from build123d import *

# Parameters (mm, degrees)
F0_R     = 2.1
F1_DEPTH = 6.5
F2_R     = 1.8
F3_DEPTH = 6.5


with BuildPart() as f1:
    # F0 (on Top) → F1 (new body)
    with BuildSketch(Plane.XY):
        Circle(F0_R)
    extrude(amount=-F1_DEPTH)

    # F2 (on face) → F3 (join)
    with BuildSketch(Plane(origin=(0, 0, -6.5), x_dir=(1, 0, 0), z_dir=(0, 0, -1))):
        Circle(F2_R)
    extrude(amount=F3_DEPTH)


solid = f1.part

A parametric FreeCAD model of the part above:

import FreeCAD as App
import Part
import Sketcher
from FreeCAD import Vector
Q = App.Units.Quantity

doc = App.newDocument("Part")
params = doc.addObject("Spreadsheet::Sheet", "Params")
for row, (alias, value) in enumerate([
    ("sketch1_diameter", "4.2 mm"),
    ("pad1_length", "6.5 mm"),
    ("sketch2_diameter", "3.6 mm"),
    ("pad2_length", "6.5 mm"),
], start=1):
    params.set(f"A{row}", alias)
    params.set(f"B{row}", "=" + value)
    params.setAlias(f"B{row}", alias)

body = doc.addObject("PartDesign::Body", "Body")

# Sketch on XY plane
sketch1 = body.newObject("Sketcher::SketchObject", "Sketch")
sketch1.AttachmentSupport = (doc.getObject("XY_Plane"), [""])
sketch1.MapMode = "FlatFace"
sketch1.addGeometry(Part.Circle(Vector(0, 0, 0), Vector(0, 0, 1), 2.1), False)
sketch1.addConstraint(Sketcher.Constraint("Coincident", 0, 3, -1, 1))
sketch1.addConstraint(Sketcher.Constraint("Diameter", 0, Q("4.2 mm")))
sketch1.setExpression("Constraints[1]", "Params.sketch1_diameter")
pad1 = body.newObject("PartDesign::Pad", "Pad")
pad1.Profile = sketch1
pad1.setExpression("Length", "Params.pad1_length")
pad1.Reversed = True

# Sketch on XY plane
sketch2 = body.newObject("Sketcher::SketchObject", "Sketch001")
sketch2.AttachmentSupport = (doc.getObject("XY_Plane"), [""])
sketch2.MapMode = "FlatFace"
sketch2.AttachmentOffset = App.Placement(Vector(0, 0, -6.5), App.Rotation())
sketch2.addGeometry(Part.Circle(Vector(0, 0, 0), Vector(0, 0, 1), 1.8), False)
sketch2.addConstraint(Sketcher.Constraint("Coincident", 0, 3, -1, 1))
sketch2.addConstraint(Sketcher.Constraint("Diameter", 0, Q("3.6 mm")))
sketch2.setExpression("Constraints[1]", "Params.sketch2_diameter")
pad2 = body.newObject("PartDesign::Pad", "Pad001")
pad2.Profile = sketch2
pad2.setExpression("Length", "Params.pad2_length")
pad2.Reversed = True

doc.recompute()
